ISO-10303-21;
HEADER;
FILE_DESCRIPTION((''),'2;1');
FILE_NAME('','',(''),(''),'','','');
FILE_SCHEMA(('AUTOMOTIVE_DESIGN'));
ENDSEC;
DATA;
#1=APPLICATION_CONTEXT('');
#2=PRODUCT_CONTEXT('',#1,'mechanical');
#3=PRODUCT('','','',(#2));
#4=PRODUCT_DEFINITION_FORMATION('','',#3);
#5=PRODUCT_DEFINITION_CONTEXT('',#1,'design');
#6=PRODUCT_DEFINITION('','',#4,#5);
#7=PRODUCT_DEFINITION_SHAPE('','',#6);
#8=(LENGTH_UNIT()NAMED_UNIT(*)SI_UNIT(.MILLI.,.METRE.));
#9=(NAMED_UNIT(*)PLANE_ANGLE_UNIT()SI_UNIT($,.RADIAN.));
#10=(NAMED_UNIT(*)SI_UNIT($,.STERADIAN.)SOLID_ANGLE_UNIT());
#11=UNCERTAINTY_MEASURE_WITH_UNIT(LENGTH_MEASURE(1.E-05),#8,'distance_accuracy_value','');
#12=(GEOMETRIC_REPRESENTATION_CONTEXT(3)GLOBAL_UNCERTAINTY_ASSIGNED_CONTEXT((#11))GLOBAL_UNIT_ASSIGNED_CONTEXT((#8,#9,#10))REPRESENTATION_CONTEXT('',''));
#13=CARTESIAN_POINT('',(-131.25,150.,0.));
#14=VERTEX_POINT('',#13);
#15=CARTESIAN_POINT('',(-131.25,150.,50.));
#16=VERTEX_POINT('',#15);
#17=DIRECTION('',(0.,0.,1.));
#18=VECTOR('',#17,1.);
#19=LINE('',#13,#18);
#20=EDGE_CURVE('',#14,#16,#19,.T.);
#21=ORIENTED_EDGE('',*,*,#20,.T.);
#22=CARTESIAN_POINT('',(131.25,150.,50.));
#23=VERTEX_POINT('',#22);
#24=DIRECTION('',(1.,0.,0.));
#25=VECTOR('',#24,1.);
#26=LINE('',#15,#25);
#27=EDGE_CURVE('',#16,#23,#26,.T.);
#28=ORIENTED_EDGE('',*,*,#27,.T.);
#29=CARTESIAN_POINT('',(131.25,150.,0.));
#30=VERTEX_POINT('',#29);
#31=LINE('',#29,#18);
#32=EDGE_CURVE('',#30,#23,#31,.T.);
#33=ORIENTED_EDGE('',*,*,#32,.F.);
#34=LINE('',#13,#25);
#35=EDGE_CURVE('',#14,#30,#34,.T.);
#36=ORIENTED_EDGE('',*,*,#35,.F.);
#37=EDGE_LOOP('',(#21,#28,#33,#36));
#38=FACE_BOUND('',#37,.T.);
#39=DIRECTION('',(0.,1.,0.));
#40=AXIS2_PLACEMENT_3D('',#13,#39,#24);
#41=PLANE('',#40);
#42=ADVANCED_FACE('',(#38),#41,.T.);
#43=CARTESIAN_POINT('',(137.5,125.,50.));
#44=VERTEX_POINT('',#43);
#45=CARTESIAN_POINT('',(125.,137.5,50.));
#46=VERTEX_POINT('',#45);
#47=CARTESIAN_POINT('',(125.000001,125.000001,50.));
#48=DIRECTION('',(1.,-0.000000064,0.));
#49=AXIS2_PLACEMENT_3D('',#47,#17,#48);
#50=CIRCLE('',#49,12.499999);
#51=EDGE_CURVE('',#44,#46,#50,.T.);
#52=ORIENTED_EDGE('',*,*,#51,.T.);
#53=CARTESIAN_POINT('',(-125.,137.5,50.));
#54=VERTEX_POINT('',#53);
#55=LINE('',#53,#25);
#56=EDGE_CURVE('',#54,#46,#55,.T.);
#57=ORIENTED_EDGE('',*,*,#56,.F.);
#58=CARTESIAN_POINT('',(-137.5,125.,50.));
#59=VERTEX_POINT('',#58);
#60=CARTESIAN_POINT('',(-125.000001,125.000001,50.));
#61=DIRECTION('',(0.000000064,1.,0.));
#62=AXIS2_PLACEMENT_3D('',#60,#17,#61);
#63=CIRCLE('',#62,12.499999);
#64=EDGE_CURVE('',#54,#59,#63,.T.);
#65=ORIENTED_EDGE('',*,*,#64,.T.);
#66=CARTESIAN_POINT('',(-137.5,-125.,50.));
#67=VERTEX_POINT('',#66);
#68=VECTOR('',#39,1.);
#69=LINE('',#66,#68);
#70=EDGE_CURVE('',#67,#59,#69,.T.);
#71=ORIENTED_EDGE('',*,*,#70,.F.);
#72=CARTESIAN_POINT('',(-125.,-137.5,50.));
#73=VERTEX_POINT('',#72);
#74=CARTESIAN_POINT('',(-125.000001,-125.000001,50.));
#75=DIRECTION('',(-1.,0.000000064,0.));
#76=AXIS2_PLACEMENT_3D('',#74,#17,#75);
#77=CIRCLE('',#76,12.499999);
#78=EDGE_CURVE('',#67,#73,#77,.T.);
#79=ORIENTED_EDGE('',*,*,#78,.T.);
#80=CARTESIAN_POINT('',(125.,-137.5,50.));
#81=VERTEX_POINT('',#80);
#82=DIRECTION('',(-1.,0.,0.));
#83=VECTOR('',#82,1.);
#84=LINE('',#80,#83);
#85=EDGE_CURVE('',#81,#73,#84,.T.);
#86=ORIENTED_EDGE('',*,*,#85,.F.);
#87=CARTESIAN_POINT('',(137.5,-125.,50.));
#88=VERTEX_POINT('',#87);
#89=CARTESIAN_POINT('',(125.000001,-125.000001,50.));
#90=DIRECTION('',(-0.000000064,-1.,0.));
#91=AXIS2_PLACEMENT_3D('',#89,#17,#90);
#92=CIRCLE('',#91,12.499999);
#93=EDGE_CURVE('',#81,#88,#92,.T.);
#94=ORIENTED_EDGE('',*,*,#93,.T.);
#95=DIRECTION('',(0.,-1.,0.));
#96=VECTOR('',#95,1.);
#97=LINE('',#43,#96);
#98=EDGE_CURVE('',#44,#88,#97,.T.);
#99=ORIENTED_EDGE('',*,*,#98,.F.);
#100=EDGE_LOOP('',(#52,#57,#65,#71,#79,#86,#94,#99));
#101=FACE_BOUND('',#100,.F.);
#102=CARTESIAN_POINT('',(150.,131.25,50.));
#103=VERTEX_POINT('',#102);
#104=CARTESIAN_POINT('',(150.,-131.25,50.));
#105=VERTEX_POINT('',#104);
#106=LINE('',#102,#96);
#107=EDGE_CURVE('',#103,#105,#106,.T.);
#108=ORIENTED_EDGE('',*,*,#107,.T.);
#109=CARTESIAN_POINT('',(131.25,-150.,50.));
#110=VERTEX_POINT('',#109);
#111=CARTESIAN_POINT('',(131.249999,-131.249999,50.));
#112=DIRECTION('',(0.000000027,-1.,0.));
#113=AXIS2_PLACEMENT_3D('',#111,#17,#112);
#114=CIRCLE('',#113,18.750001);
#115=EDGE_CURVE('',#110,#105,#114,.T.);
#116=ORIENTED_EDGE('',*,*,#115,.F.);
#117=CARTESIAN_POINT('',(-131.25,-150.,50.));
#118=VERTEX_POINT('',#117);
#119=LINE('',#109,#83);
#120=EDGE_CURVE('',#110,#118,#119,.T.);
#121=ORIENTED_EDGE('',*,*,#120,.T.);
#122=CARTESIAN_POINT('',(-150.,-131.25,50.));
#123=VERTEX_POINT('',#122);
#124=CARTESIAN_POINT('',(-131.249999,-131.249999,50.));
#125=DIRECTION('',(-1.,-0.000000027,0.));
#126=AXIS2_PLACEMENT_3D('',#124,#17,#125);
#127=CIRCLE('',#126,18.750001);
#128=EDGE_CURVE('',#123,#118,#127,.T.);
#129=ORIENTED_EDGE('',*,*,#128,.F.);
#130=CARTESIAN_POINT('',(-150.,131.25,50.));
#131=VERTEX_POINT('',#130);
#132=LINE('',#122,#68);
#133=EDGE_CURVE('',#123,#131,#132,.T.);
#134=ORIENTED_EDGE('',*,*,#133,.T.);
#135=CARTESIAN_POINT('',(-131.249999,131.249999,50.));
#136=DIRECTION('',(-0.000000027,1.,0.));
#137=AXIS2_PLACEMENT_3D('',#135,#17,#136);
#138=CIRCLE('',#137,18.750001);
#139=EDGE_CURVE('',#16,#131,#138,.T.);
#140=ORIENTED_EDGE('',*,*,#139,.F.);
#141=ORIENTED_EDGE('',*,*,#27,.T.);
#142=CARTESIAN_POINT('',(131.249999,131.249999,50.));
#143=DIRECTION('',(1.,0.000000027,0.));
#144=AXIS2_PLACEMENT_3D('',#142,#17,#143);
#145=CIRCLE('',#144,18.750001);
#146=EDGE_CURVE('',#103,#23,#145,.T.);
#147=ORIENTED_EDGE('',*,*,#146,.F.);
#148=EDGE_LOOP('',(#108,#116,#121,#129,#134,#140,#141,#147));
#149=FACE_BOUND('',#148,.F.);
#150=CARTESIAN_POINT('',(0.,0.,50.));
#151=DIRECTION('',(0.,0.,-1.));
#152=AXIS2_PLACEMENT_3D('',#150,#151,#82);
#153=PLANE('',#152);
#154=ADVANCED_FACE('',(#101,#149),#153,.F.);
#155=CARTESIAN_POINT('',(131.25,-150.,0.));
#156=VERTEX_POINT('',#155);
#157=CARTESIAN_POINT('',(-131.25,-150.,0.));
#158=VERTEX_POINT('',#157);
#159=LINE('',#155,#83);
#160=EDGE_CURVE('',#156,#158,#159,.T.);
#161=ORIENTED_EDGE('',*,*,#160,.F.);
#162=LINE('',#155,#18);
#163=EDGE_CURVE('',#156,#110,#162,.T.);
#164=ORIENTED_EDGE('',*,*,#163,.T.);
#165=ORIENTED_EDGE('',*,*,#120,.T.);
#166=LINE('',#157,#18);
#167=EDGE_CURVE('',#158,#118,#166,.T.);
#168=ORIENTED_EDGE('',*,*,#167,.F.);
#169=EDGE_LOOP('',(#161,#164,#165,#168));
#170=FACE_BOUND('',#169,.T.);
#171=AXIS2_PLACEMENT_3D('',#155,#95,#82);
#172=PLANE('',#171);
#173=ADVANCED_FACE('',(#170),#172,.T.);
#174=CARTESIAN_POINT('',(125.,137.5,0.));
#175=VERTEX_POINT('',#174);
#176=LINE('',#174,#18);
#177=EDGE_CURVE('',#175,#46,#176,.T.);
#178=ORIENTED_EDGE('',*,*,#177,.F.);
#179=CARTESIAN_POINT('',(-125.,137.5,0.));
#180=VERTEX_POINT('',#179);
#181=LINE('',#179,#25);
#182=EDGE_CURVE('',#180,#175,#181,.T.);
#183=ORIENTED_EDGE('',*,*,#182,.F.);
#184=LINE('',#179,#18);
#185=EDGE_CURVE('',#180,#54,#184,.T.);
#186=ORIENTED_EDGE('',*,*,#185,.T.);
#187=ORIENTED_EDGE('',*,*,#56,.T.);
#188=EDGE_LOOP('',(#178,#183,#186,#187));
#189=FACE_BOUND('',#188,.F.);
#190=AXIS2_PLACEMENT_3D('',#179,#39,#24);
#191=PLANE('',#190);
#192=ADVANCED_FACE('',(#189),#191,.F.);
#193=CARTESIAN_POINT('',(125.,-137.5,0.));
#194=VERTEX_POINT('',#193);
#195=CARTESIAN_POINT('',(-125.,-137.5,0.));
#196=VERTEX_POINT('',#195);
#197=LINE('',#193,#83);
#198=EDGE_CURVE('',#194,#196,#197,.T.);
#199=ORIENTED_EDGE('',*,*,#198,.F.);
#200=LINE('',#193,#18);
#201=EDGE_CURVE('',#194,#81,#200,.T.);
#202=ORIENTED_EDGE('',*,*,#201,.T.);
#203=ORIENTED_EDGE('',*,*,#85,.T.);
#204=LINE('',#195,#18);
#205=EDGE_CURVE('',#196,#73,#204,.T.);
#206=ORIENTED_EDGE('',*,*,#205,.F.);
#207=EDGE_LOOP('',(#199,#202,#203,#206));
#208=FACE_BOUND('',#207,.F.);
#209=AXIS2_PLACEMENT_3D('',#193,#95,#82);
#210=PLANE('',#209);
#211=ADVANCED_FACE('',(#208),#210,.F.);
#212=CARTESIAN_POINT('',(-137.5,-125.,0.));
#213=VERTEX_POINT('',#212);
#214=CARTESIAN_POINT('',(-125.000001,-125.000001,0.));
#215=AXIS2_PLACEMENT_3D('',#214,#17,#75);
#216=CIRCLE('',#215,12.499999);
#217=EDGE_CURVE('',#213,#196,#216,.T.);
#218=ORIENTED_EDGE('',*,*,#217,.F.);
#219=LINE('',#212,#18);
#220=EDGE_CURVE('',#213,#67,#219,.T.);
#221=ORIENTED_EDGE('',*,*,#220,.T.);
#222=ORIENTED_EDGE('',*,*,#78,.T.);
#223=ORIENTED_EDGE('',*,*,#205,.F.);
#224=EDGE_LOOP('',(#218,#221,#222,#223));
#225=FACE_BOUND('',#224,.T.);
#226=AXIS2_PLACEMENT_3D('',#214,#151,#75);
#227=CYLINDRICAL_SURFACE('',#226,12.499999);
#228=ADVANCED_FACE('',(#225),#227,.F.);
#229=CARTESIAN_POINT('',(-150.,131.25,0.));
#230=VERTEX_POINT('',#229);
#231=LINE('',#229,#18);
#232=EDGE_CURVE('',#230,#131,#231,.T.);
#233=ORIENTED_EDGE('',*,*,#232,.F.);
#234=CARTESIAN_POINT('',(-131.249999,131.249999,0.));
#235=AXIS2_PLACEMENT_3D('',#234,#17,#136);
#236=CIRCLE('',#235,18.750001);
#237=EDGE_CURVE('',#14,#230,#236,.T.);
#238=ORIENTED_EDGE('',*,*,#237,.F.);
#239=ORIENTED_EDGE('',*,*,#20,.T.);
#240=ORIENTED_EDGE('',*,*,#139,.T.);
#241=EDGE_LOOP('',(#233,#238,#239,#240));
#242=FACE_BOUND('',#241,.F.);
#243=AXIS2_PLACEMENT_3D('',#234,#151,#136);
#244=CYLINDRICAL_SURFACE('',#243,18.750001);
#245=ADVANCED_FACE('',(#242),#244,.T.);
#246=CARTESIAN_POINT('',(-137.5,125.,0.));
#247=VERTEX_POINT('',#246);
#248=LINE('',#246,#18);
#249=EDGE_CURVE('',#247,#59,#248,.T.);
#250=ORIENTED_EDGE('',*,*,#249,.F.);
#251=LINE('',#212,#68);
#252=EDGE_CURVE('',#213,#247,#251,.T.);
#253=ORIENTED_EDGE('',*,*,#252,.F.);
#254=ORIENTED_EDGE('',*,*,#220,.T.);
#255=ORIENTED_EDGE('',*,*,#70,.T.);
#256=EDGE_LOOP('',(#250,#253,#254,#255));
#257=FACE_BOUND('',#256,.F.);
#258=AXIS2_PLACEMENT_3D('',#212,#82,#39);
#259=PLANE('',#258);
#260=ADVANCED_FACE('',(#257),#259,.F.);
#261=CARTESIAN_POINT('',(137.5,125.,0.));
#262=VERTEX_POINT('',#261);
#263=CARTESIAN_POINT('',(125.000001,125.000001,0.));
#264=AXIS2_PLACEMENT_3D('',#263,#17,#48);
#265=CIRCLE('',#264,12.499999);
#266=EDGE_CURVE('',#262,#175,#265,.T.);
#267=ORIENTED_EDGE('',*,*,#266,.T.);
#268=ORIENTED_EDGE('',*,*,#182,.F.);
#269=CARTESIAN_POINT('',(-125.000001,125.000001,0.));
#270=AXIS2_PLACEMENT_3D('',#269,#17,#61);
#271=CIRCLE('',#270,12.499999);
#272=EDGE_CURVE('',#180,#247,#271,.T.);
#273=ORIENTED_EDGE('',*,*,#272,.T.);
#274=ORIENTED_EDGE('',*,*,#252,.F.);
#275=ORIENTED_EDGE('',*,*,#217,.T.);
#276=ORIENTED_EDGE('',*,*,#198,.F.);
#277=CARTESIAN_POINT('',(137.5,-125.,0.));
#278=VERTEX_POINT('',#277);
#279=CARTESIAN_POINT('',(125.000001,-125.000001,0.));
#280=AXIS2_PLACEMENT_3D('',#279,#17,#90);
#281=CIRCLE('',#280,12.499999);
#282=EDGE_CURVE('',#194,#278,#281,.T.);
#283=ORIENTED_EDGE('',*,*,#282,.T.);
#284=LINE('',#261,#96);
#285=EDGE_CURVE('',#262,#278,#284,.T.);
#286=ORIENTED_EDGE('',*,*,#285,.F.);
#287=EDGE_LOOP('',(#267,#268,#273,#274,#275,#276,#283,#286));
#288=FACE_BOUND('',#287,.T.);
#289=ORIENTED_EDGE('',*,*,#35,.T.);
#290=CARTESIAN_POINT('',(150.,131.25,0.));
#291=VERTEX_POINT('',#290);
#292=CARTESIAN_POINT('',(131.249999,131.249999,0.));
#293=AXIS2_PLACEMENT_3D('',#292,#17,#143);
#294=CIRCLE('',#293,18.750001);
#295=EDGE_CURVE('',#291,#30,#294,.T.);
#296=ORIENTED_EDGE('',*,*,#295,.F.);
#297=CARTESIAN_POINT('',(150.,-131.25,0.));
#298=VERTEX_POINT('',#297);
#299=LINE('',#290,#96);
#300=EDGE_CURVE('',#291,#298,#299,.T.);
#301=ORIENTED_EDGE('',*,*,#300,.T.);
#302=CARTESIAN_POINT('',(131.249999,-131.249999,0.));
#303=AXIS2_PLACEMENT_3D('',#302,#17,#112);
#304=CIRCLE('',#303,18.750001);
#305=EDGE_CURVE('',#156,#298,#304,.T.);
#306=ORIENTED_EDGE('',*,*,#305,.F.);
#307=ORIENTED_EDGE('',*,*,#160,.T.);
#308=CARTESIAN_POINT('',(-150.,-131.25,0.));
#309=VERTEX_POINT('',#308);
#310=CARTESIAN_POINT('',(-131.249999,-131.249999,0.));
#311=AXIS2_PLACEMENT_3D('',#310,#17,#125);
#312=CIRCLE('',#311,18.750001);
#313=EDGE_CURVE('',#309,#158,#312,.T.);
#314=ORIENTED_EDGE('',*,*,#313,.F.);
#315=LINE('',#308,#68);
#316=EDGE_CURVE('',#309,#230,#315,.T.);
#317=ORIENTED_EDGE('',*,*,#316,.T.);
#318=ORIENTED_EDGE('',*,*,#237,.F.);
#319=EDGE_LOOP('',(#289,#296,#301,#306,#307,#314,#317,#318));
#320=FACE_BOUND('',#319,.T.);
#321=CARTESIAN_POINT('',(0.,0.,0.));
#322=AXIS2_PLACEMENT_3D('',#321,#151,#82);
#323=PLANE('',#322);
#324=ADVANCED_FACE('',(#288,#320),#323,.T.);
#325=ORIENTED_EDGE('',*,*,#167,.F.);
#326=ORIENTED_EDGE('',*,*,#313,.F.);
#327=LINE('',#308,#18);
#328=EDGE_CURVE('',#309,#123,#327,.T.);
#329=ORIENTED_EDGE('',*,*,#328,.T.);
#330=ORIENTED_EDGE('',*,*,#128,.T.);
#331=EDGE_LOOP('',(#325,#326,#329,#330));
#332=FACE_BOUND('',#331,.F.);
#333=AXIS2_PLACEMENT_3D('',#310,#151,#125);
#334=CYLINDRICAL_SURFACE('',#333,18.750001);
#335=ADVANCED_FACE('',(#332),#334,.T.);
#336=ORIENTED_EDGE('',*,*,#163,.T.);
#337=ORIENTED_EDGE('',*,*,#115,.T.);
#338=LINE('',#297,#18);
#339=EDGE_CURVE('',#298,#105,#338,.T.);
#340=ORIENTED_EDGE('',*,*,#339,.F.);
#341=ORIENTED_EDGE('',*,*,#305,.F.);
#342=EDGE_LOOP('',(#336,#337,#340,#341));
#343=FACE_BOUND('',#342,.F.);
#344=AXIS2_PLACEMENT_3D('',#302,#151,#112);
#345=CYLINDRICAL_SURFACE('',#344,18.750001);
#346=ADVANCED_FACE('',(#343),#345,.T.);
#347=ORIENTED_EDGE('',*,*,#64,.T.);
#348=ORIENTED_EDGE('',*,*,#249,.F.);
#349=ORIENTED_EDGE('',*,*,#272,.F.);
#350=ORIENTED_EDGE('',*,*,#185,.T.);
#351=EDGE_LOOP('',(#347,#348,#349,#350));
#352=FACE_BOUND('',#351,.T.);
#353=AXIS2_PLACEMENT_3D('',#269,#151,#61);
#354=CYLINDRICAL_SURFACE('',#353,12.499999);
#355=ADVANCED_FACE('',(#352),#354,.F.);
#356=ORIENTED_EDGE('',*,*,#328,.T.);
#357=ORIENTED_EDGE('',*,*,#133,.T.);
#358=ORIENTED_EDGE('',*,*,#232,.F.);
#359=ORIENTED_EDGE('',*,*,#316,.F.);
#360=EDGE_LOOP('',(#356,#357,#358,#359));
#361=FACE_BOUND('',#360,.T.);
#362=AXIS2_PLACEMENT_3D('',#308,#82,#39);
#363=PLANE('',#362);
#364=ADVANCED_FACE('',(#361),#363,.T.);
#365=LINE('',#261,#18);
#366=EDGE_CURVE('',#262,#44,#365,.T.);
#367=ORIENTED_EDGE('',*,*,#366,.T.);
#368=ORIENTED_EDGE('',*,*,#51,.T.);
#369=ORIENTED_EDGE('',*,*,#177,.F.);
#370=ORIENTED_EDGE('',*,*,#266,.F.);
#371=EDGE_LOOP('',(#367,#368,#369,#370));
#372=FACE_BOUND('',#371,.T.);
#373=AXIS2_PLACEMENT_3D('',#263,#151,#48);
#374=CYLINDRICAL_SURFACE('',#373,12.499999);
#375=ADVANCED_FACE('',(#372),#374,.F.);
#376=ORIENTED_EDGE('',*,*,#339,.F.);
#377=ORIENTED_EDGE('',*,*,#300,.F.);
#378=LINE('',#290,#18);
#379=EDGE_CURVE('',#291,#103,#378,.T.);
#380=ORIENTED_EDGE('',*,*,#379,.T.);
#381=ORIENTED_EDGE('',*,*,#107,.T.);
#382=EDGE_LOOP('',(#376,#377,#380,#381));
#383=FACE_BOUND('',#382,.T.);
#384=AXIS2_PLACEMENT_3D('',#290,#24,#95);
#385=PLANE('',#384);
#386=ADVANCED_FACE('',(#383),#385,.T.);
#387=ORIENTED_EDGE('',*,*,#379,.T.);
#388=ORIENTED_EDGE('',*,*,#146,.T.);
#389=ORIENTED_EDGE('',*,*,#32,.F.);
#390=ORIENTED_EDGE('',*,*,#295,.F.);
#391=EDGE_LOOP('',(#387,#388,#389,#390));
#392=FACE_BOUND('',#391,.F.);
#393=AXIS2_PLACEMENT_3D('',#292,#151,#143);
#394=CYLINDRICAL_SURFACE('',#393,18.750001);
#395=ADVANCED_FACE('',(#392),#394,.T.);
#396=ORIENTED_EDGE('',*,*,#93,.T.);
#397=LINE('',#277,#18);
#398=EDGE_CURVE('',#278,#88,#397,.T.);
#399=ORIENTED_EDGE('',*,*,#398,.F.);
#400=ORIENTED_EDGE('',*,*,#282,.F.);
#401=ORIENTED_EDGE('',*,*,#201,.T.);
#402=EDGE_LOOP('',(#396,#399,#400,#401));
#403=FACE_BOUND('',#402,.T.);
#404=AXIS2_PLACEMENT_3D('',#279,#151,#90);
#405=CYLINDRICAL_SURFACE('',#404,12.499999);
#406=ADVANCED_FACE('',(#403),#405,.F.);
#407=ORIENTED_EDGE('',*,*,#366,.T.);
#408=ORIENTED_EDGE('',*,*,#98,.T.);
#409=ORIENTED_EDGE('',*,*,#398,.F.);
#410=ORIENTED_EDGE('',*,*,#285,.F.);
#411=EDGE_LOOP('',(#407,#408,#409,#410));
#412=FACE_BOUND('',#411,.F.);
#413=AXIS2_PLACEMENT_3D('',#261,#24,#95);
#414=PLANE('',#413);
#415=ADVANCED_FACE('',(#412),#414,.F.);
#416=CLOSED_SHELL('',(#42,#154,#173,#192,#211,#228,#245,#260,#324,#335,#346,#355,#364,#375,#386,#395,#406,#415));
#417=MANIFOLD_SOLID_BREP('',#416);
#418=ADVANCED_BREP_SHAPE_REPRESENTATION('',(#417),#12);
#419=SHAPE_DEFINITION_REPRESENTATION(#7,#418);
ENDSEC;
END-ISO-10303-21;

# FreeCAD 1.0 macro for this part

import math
import FreeCAD as App
import Part
import Sketcher
from FreeCAD import Vector

doc = App.newDocument("Part")
body = doc.addObject("PartDesign::Body", "Body")

# Sketch on XY plane
sketch1 = doc.addObject("Sketcher::SketchObject", "Sketch")
body.addObject(sketch1)
sketch1.AttachmentSupport = (doc.XY_Plane, [""])
sketch1.MapMode = "FlatFace"
sketch1.addGeometry([
    Part.LineSegment(Vector(131.25, 150, 0), Vector(-131.25, 150, 0)),  # 0
    Part.ArcOfCircle(Part.Circle(Vector(-131.249999, 131.249999, 0), Vector(0, 0, 1), 18.750001), math.radians(90.000002), math.radians(179.999998)),  # 1
    Part.LineSegment(Vector(-150, 131.25, 0), Vector(-150, -131.25, 0)),  # 2
    Part.ArcOfCircle(Part.Circle(Vector(-131.249999, -131.249999, 0), Vector(0, 0, 1), 18.750001), math.radians(-179.999998), math.radians(-90.000002)),  # 3
    Part.LineSegment(Vector(-131.25, -150, 0), Vector(131.25, -150, 0)),  # 4
    Part.ArcOfCircle(Part.Circle(Vector(131.249999, -131.249999, 0), Vector(0, 0, 1), 18.750001), math.radians(-89.999998), math.radians(-0.000002)),  # 5
    Part.LineSegment(Vector(150, -131.25, 0), Vector(150, 131.25, 0)),  # 6
    Part.ArcOfCircle(Part.Circle(Vector(131.249999, 131.249999, 0), Vector(0, 0, 1), 18.750001), math.radians(0.000002), math.radians(89.999998)),  # 7
    Part.LineSegment(Vector(-125, 137.5, 0), Vector(125, 137.5, 0)),  # 8
    Part.ArcOfCircle(Part.Circle(Vector(125.000001, 125.000001, 0), Vector(0, 0, 1), 12.499999), math.radians(-0.000004), math.radians(90.000004)),  # 9
    Part.LineSegment(Vector(137.5, 125, 0), Vector(137.5, -125, 0)),  # 10
    Part.ArcOfCircle(Part.Circle(Vector(125.000001, -125.000001, 0), Vector(0, 0, 1), 12.499999), math.radians(-90.000004), math.radians(0.000004)),  # 11
    Part.LineSegment(Vector(125, -137.5, 0), Vector(-125, -137.5, 0)),  # 12
    Part.ArcOfCircle(Part.Circle(Vector(-125.000001, -125.000001, 0), Vector(0, 0, 1), 12.499999), math.radians(179.999996), math.radians(270.000004)),  # 13
    Part.LineSegment(Vector(-137.5, -125, 0), Vector(-137.5, 125, 0)),  # 14
    Part.ArcOfCircle(Part.Circle(Vector(-125.000001, 125.000001, 0), Vector(0, 0, 1), 12.499999), math.radians(89.999996), math.radians(180.000004)),  # 15
], False)
sketch1.addConstraint([
    Sketcher.Constraint("Tangent", 0, 2, 1, 1),
    Sketcher.Constraint("Tangent", 1, 2, 2, 1),
    Sketcher.Constraint("Tangent", 2, 2, 3, 1),
    Sketcher.Constraint("Tangent", 3, 2, 4, 1),
    Sketcher.Constraint("Tangent", 4, 2, 5, 1),
    Sketcher.Constraint("Tangent", 5, 2, 6, 1),
    Sketcher.Constraint("Tangent", 6, 2, 7, 1),
    Sketcher.Constraint("Tangent", 7, 2, 0, 1),
    Sketcher.Constraint("Tangent", 8, 2, 9, 2),
    Sketcher.Constraint("Tangent", 9, 1, 10, 1),
    Sketcher.Constraint("Tangent", 10, 2, 11, 2),
    Sketcher.Constraint("Tangent", 11, 1, 12, 1),
    Sketcher.Constraint("Tangent", 12, 2, 13, 2),
    Sketcher.Constraint("Tangent", 13, 1, 14, 1),
    Sketcher.Constraint("Tangent", 14, 2, 15, 2),
    Sketcher.Constraint("Tangent", 15, 1, 8, 1),
    Sketcher.Constraint("Horizontal", 0),
    Sketcher.Constraint("Vertical", 2),
    Sketcher.Constraint("Horizontal", 4),
    Sketcher.Constraint("Vertical", 6),
    Sketcher.Constraint("Horizontal", 8),
    Sketcher.Constraint("Vertical", 10),
    Sketcher.Constraint("Horizontal", 12),
    Sketcher.Constraint("Vertical", 14),
    Sketcher.Constraint("Equal", 1, 3),
    Sketcher.Constraint("Equal", 3, 5),
    Sketcher.Constraint("Equal", 5, 7),
    Sketcher.Constraint("Equal", 9, 11),
    Sketcher.Constraint("Equal", 11, 13),
    Sketcher.Constraint("Equal", 13, 15),
    Sketcher.Constraint("Symmetric", 1, 3, 5, 3, -1, 1),
    Sketcher.Constraint("Symmetric", 9, 3, 13, 3, -1, 1),
    Sketcher.Constraint("Equal", 4, 2),
    Sketcher.Constraint("Equal", 12, 10),
    Sketcher.Constraint("Radius", 9, 12.499999),
    Sketcher.Constraint("DistanceX", 8, 1, 8, 2, 250.0),
    Sketcher.Constraint("Radius", 1, 18.750001),
    Sketcher.Constraint("DistanceX", 0, 2, 0, 1, 262.5),
])
pad1 = doc.addObject("PartDesign::Pad", "Pad")
body.addObject(pad1)
pad1.Profile = sketch1
pad1.Length = 50

doc.recompute()
